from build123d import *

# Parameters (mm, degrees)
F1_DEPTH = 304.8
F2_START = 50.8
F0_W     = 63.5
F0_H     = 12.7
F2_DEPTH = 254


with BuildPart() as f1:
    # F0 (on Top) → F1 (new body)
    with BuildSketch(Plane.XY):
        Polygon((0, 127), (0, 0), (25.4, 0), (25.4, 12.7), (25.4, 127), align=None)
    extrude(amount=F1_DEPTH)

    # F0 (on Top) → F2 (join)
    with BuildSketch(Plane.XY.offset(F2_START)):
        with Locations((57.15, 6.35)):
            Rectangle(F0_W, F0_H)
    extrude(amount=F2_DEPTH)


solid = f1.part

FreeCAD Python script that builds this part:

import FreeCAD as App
import Part
import Sketcher
from FreeCAD import Vector
Q = App.Units.Quantity


def add_polygon(sketch, points):
    """Adds a closed chain of lines whose ends are joined by coincident constraints."""
    first, n = sketch.GeometryCount, len(points)
    for a, b in zip(points, points[1:] + points[:1]):
        sketch.addGeometry(Part.LineSegment(App.Vector(*a, 0), App.Vector(*b, 0)), False)
    for i in range(n):
        sketch.addConstraint(Sketcher.Constraint("Coincident", first + i, 2, first + (i + 1) % n, 1))

doc = App.newDocument("Part")
body = doc.addObject("PartDesign::Body", "Body")

sketch1 = body.newObject("Sketcher::SketchObject", "Sketch")
sketch1.AttachmentSupport = (doc.getObject("XY_Plane"), [""])
sketch1.MapMode = "FlatFace"
add_polygon(sketch1, [(0, 127), (0, 0), (25, 0), (25, 127)])
sketch1.addConstraint(Sketcher.Constraint("Vertical", 0))
sketch1.addConstraint(Sketcher.Constraint("Horizontal", 1))
sketch1.addConstraint(Sketcher.Constraint("Vertical", 2))
sketch1.addConstraint(Sketcher.Constraint("Horizontal", 3))
sketch1.addConstraint(Sketcher.Constraint("Coincident", 0, 2, -1, 1))
sketch1.addConstraint(Sketcher.Constraint("DistanceX", 1, 1, 1, 2, Q("1 in")))
sketch1.addConstraint(Sketcher.Constraint("DistanceY", 0, 2, 0, 1, Q("5 in")))
pad1 = body.newObject("PartDesign::Pad", "Pad")
pad1.Profile = sketch1
pad1.Length = Q("12 in")

sketch2 = body.newObject("Sketcher::SketchObject", "Sketch001")
sketch2.AttachmentSupport = (doc.getObject("XY_Plane"), [""])
sketch2.MapMode = "FlatFace"
sketch2.AttachmentOffset = App.Placement(Vector(0, 0, 2 * 25.4), App.Rotation())
add_polygon(sketch2, [(25, 13), (25, 0), (89, 0), (89, 13)])
sketch2.addConstraint(Sketcher.Constraint("Vertical", 0))
sketch2.addConstraint(Sketcher.Constraint("Horizontal", 1))
sketch2.addConstraint(Sketcher.Constraint("Vertical", 2))
sketch2.addConstraint(Sketcher.Constraint("Horizontal", 3))
sketch2.addConstraint(Sketcher.Constraint("PointOnObject", 0, 2, -1))
sketch2.addConstraint(Sketcher.Constraint("DistanceX", 1, 1, 1, 2, Q("2.5 in")))
sketch2.addConstraint(Sketcher.Constraint("DistanceY", 0, 2, 0, 1, Q("0.5 in")))
sketch2.addConstraint(Sketcher.Constraint("DistanceX", -1, 1, 0, 2, Q("1 in")))
pad2 = body.newObject("PartDesign::Pad", "Pad001")
pad2.Profile = sketch2
pad2.Length = Q("10 in")

doc.recompute()
